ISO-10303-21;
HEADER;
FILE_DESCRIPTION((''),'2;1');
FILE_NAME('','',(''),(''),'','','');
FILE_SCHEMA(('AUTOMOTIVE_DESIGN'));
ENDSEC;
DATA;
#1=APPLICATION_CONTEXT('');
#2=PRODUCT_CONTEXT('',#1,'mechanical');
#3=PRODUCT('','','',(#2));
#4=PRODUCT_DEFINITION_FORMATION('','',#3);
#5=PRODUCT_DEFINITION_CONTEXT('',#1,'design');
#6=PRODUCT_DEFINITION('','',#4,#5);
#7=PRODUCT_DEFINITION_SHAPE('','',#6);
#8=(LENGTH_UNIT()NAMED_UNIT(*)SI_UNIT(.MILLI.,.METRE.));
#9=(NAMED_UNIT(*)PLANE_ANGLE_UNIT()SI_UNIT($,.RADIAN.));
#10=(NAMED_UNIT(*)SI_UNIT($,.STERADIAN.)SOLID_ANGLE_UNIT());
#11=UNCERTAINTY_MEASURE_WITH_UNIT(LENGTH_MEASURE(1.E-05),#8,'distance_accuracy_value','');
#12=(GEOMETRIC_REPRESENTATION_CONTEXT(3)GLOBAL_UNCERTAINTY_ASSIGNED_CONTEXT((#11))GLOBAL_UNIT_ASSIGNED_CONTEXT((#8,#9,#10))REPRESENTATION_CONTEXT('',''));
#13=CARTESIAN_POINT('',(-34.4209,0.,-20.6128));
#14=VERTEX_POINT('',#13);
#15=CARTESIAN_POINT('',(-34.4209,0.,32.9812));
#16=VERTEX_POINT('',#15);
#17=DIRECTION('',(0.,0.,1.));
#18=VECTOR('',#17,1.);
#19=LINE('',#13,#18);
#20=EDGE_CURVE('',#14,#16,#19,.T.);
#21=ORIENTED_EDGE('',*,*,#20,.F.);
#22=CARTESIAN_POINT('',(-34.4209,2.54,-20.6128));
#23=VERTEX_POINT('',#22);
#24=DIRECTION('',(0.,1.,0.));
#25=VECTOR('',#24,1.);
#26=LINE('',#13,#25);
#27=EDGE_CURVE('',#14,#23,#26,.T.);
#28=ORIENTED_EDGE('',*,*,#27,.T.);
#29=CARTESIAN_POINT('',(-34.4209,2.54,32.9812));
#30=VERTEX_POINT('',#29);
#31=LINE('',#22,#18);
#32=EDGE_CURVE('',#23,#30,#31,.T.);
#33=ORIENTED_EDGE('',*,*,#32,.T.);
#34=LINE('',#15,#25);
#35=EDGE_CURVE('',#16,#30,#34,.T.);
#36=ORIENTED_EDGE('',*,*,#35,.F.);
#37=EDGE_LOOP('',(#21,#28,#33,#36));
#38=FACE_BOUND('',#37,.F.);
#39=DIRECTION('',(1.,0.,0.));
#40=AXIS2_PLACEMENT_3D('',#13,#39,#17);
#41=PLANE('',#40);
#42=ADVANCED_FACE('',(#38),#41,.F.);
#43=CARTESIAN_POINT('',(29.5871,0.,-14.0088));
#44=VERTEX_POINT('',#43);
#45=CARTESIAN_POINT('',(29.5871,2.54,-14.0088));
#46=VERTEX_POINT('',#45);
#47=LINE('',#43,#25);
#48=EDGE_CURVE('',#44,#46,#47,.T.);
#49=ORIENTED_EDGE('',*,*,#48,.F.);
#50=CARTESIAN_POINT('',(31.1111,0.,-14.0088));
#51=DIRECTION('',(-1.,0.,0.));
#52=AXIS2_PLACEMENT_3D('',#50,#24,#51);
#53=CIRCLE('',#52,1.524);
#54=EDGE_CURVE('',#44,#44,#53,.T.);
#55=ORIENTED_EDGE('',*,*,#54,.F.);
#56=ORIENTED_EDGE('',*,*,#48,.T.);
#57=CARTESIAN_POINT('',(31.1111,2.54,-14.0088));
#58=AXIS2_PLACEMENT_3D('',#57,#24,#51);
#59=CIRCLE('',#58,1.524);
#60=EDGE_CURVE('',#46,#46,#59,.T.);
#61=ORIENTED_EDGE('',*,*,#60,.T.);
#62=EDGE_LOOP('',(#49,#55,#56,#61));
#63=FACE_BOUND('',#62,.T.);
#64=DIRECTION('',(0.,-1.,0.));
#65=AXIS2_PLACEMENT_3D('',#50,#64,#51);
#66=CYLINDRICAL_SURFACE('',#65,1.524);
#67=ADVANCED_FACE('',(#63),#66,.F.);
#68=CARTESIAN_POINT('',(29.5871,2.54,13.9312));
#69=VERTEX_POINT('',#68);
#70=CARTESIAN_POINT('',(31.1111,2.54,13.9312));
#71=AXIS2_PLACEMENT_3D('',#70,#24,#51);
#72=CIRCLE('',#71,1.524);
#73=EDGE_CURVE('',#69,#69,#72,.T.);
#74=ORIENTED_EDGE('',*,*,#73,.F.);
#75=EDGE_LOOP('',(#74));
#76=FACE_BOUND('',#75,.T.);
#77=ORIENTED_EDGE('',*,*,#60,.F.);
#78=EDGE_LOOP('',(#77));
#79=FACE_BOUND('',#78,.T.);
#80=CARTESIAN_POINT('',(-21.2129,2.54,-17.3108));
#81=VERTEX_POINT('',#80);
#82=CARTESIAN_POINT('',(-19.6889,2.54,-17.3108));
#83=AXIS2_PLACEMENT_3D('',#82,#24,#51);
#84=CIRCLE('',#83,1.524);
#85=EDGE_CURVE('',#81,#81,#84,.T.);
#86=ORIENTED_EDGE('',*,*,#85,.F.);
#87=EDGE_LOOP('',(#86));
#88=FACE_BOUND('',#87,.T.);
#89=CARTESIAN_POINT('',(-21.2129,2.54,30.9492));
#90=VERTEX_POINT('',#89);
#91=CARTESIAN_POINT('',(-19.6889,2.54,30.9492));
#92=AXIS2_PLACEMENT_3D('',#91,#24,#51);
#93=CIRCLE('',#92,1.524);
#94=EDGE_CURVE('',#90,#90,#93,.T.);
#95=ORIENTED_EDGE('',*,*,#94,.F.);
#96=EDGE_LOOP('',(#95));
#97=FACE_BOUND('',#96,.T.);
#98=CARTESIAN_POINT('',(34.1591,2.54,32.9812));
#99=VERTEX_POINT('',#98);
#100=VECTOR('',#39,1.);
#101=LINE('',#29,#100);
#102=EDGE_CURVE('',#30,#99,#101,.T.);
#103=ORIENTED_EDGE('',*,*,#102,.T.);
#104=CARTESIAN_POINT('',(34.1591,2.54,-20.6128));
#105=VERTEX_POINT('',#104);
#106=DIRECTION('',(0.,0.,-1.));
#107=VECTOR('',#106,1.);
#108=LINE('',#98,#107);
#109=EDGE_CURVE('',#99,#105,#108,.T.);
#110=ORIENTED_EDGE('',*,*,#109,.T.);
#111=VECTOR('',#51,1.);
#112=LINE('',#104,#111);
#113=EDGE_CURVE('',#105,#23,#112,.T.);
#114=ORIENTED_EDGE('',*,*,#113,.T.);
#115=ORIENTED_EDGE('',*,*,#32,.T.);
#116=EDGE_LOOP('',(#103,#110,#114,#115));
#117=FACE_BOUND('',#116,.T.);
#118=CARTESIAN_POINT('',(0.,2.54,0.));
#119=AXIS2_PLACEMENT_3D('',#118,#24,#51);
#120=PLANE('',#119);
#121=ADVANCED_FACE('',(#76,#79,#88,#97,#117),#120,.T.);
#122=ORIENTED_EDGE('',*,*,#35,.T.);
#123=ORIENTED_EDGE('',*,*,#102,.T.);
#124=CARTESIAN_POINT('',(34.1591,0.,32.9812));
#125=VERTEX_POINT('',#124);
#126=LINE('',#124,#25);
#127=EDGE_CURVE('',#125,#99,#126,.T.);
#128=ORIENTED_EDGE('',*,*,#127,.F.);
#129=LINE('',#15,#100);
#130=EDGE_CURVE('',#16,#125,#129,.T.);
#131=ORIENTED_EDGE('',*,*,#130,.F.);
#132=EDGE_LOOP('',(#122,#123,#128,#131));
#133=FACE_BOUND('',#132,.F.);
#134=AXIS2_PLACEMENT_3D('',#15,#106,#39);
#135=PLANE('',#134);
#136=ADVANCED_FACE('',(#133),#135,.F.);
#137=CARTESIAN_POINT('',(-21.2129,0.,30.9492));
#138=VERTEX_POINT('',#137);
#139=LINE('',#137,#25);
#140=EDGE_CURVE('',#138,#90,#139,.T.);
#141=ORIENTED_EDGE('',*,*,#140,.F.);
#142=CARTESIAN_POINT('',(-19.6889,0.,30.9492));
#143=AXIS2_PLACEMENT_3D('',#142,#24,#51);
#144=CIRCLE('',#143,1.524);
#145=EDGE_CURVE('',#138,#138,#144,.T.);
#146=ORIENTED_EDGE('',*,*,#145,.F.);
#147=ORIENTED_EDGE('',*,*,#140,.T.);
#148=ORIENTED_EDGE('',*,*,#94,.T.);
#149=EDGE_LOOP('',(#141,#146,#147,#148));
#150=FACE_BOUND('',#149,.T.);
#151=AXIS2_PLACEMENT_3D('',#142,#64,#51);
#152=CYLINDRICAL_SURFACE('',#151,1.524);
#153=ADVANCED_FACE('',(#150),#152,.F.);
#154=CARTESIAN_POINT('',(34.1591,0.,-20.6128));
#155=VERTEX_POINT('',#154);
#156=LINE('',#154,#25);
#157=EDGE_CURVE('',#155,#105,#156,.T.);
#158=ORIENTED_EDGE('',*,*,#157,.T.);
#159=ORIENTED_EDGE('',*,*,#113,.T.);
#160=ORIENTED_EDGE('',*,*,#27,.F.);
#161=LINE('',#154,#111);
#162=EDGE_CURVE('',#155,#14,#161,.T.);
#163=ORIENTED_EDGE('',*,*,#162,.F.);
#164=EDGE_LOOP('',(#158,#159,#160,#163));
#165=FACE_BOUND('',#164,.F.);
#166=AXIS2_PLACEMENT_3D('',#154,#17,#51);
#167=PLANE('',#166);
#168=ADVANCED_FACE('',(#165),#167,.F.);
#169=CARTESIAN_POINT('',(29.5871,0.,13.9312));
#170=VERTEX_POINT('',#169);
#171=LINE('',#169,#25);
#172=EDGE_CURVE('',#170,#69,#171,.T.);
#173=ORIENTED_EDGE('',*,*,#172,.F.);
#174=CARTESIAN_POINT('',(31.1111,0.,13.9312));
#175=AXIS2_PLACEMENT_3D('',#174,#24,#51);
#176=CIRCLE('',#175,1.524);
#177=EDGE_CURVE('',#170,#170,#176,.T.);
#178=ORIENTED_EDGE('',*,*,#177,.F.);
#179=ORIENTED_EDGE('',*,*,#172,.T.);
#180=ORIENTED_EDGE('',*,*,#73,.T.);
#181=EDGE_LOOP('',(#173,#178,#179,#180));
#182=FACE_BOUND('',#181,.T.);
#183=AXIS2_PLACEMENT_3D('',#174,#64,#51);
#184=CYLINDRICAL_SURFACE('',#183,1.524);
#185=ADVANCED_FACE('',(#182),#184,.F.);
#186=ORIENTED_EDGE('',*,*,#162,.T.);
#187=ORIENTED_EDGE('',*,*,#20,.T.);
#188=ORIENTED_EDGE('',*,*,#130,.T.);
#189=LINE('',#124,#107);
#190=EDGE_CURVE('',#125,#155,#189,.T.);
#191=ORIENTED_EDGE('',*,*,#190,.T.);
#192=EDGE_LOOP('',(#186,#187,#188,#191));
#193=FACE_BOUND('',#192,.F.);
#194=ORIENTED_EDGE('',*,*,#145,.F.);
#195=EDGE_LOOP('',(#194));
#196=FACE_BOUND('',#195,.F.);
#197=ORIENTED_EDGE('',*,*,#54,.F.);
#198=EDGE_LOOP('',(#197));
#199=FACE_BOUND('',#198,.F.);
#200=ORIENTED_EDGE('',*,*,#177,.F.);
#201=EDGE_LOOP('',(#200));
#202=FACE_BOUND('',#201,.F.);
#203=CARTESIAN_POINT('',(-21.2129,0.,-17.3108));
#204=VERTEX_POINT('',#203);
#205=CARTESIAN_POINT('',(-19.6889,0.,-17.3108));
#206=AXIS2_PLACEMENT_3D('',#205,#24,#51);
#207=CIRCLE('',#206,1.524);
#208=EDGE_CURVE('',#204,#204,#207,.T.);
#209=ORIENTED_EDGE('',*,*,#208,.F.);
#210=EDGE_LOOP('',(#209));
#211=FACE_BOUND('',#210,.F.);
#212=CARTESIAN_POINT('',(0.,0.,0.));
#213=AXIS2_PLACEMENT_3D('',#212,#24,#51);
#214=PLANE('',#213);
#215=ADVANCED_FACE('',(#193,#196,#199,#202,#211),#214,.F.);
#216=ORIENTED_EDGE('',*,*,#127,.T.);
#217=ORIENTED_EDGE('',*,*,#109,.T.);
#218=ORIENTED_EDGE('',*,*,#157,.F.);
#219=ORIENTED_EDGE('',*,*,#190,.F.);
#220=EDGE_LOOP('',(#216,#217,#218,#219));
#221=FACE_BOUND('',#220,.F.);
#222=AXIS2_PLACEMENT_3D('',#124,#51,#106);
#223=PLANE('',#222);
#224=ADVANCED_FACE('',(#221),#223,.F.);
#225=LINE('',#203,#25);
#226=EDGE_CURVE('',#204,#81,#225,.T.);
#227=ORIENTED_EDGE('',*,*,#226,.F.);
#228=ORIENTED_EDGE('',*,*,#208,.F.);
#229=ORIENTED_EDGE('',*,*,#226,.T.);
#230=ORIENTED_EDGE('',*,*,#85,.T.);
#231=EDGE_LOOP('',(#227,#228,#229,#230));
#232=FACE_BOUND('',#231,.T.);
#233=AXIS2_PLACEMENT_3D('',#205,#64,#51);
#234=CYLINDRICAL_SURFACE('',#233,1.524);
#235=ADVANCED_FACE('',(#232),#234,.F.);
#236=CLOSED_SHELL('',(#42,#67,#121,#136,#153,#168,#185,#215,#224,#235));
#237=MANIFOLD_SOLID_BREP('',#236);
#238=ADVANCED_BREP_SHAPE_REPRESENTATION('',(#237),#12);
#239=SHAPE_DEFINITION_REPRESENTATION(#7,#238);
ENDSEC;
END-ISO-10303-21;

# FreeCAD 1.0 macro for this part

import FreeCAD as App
import Part
import Sketcher

V = App.Vector
Q = App.Units.Quantity


def add_polygon(sketch, points):
    """Adds a closed chain of lines whose ends are joined by coincident constraints."""
    first, n = sketch.GeometryCount, len(points)
    for a, b in zip(points, points[1:] + points[:1]):
        sketch.addGeometry(Part.LineSegment(App.Vector(*a, 0), App.Vector(*b, 0)), False)
    for i in range(n):
        sketch.addConstraint(Sketcher.Constraint("Coincident", first + i, 2, first + (i + 1) % n, 1))

doc = App.newDocument("Part")
body = doc.addObject("PartDesign::Body", "Body")

# Sketch on XZ plane
sketch1 = body.newObject("Sketcher::SketchObject", "Sketch")
sketch1.AttachmentSupport = (doc.getObject("XZ_Plane"), [""])
sketch1.MapMode = "FlatFace"
add_polygon(sketch1, [(-34.4, -20.6), (-34.4, 33), (34.2, 33), (34.2, -20.6)])  # lines 0-3
sketch1.addGeometry(Part.Circle(V(31.1, -14, 0), V(0, 0, 1), 1.5), False)  # 4
sketch1.addGeometry(Part.Circle(V(-19.7, -17.3, 0), V(0, 0, 1), 1.5), False)  # 5
sketch1.addGeometry(Part.Circle(V(31.1, 13.9, 0), V(0, 0, 1), 1.5), False)  # 6
sketch1.addGeometry(Part.Circle(V(-19.7, 30.9, 0), V(0, 0, 1), 1.5), False)  # 7
sketch1.addConstraint([
    Sketcher.Constraint("Vertical", 0),
    Sketcher.Constraint("Horizontal", 1),
    Sketcher.Constraint("Vertical", 2),
    Sketcher.Constraint("Horizontal", 3),
    Sketcher.Constraint("Equal", 4, 5),
    Sketcher.Constraint("Equal", 5, 6),
    Sketcher.Constraint("Equal", 6, 7),
    Sketcher.Constraint("Vertical", 4, 3, 6, 3),
    Sketcher.Constraint("Vertical", 5, 3, 7, 3),
    Sketcher.Constraint("Diameter", 4, Q("0.12 in")),
    Sketcher.Constraint("DistanceX", 1, 1, 1, 2, Q("2.7 in")),
    Sketcher.Constraint("DistanceY", 0, 1, 0, 2, Q("2.11 in")),
    Sketcher.Constraint("DistanceY", 4, 3, 6, 3, Q("1.1 in")),
    Sketcher.Constraint("DistanceY", 5, 3, 7, 3, Q("1.9 in")),
    Sketcher.Constraint("DistanceX", 0, 2, 7, 3, Q("0.58 in")),
    Sketcher.Constraint("DistanceY", 7, 3, 0, 2, Q("0.08 in")),
    Sketcher.Constraint("DistanceX", 6, 3, 1, 2, Q("0.12 in")),
    Sketcher.Constraint("DistanceY", 2, 2, 4, 3, Q("0.26 in")),
    Sketcher.Constraint("DistanceX", -1, 1, 4, 3, Q("31.111 mm")),
    Sketcher.Constraint("DistanceY", 4, 3, -1, 1, Q("14.0088 mm")),
])
pad1 = body.newObject("PartDesign::Pad", "Pad")
pad1.Profile = sketch1
pad1.Length = Q("0.1 in")
pad1.Reversed = True

doc.recompute()
